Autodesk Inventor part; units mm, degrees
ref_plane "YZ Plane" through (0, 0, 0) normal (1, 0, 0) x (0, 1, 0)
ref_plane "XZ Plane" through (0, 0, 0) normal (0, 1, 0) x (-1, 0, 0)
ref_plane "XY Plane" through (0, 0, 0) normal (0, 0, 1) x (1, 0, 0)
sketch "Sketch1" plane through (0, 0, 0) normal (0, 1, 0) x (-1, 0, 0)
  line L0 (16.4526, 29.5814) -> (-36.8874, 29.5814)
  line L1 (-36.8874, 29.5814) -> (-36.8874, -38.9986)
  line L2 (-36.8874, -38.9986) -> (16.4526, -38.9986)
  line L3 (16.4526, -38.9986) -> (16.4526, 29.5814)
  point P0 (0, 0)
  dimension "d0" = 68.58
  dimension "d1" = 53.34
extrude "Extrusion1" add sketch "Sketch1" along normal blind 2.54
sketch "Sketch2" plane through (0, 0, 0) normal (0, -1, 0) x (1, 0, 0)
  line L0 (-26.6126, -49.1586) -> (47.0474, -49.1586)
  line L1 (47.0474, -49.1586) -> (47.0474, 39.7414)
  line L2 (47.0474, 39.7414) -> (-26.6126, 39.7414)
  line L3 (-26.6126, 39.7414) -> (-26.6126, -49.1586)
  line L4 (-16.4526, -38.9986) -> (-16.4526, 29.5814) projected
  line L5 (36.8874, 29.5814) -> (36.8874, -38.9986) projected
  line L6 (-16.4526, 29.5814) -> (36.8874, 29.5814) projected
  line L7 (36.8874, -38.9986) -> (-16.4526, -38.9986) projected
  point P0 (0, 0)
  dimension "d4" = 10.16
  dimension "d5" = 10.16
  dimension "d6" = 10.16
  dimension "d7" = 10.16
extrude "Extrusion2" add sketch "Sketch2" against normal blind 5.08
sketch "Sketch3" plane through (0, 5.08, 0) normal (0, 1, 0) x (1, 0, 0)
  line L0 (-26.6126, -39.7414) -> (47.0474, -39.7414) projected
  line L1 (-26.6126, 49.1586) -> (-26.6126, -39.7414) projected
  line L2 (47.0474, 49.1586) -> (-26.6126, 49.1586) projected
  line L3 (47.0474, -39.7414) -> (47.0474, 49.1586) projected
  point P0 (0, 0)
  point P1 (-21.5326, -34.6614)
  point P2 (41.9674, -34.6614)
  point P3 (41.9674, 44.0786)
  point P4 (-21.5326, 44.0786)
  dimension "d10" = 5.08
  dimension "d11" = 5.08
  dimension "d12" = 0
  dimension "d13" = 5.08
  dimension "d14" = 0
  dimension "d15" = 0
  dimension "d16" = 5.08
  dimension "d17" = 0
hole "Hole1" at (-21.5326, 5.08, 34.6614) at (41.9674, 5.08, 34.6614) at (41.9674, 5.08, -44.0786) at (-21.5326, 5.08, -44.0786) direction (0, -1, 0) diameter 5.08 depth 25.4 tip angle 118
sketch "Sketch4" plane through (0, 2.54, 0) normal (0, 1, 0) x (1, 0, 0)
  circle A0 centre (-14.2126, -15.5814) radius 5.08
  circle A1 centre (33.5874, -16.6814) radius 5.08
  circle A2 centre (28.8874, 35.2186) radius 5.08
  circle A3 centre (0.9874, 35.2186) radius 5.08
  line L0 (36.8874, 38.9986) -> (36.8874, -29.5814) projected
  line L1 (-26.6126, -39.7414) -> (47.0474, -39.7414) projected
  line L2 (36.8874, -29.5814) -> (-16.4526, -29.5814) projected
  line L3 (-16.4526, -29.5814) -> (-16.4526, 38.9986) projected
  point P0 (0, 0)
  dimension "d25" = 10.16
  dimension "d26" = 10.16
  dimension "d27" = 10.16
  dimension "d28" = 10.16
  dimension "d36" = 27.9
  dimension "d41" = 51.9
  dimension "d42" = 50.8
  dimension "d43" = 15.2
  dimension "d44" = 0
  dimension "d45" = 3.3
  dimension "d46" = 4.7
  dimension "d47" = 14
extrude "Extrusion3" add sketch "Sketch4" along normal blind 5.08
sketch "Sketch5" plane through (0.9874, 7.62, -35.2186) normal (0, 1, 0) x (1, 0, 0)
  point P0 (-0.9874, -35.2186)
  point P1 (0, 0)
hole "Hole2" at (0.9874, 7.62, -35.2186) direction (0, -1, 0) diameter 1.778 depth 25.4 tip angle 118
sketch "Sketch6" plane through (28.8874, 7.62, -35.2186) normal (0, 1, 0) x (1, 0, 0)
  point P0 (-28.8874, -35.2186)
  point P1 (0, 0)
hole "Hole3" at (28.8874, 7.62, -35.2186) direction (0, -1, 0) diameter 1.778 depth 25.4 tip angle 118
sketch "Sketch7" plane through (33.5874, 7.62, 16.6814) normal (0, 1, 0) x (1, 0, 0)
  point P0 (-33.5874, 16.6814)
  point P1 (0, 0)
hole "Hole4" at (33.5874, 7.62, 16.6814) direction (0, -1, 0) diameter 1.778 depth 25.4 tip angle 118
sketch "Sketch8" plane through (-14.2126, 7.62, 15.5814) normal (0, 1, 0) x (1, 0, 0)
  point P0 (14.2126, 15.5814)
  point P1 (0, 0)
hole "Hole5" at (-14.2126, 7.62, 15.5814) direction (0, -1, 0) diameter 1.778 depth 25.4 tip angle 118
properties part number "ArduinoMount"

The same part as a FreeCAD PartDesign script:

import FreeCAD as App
import Part
import Sketcher

V = App.Vector
Q = App.Units.Quantity


def add_polygon(sketch, points):
    """Adds a closed chain of lines whose ends are joined by coincident constraints."""
    first, n = sketch.GeometryCount, len(points)
    for a, b in zip(points, points[1:] + points[:1]):
        sketch.addGeometry(Part.LineSegment(App.Vector(*a, 0), App.Vector(*b, 0)), False)
    for i in range(n):
        sketch.addConstraint(Sketcher.Constraint("Coincident", first + i, 2, first + (i + 1) % n, 1))

doc = App.newDocument("Part")
body = doc.addObject("PartDesign::Body", "Body")

# Sketch on XZ plane
sketch1 = body.newObject("Sketcher::SketchObject", "Sketch")
sketch1.AttachmentSupport = (doc.getObject("XZ_Plane"), [""])
sketch1.MapMode = "FlatFace"
add_polygon(sketch1, [(-16, -39), (-16, 30), (37, 30), (37, -39)])  # lines 0-3
sketch1.addConstraint(Sketcher.Constraint("Vertical", 0))
sketch1.addConstraint(Sketcher.Constraint("Horizontal", 1))
sketch1.addConstraint(Sketcher.Constraint("Vertical", 2))
sketch1.addConstraint(Sketcher.Constraint("Horizontal", 3))
sketch1.addConstraint(Sketcher.Constraint("DistanceX", 1, 1, 1, 2, Q("2.1 in")))
sketch1.addConstraint(Sketcher.Constraint("DistanceY", 0, 1, 0, 2, Q("2.7 in")))
sketch1.addConstraint(Sketcher.Constraint("DistanceX", 0, 2, -1, 1, Q("16.4526 mm")))
sketch1.addConstraint(Sketcher.Constraint("DistanceY", -1, 1, 0, 2, Q("29.5814 mm")))
pad1 = body.newObject("PartDesign::Pad", "Pad")
pad1.Profile = sketch1
pad1.Length = Q("0.1 in")
pad1.Reversed = True

# Sketch on XZ plane
sketch2 = body.newObject("Sketcher::SketchObject", "Sketch001")
sketch2.AttachmentSupport = (doc.getObject("XZ_Plane"), [""])
sketch2.MapMode = "FlatFace"
add_polygon(sketch2, [(-27, 40), (-27, -49), (47, -49), (47, 40)])  # lines 0-3
add_polygon(sketch2, [(37, -39), (-16, -39), (-16, 30), (37, 30)])  # lines 4-7
sketch2.addConstraint(Sketcher.Constraint("Vertical", 0))
sketch2.addConstraint(Sketcher.Constraint("Horizontal", 1))
sketch2.addConstraint(Sketcher.Constraint("Vertical", 2))
sketch2.addConstraint(Sketcher.Constraint("Horizontal", 3))
sketch2.addConstraint(Sketcher.Constraint("Horizontal", 4))
sketch2.addConstraint(Sketcher.Constraint("Vertical", 5))
sketch2.addConstraint(Sketcher.Constraint("Horizontal", 6))
sketch2.addConstraint(Sketcher.Constraint("Vertical", 7))
sketch2.addConstraint(Sketcher.Constraint("DistanceX", 0, 2, 4, 2, Q("0.4 in")))
sketch2.addConstraint(Sketcher.Constraint("DistanceY", 0, 2, 4, 2, Q("0.4 in")))
sketch2.addConstraint(Sketcher.Constraint("DistanceY", 5, 2, 3, 2, Q("0.4 in")))
sketch2.addConstraint(Sketcher.Constraint("DistanceX", 6, 2, 2, 2, Q("0.4 in")))
sketch2.addConstraint(Sketcher.Constraint("DistanceX", 1, 1, 1, 2, Q("2.9 in")))
sketch2.addConstraint(Sketcher.Constraint("DistanceY", 0, 2, 0, 1, Q("3.5 in")))
sketch2.addConstraint(Sketcher.Constraint("DistanceX", 0, 2, -1, 1, Q("26.6126 mm")))
sketch2.addConstraint(Sketcher.Constraint("DistanceY", 0, 2, -1, 1, Q("49.1586 mm")))
pad2 = body.newObject("PartDesign::Pad", "Pad001")
pad2.Profile = sketch2
pad2.Length = Q("0.2 in")
pad2.Reversed = True

# Sketch on XZ plane
sketch3 = body.newObject("Sketcher::SketchObject", "Sketch002")
sketch3.AttachmentSupport = (doc.getObject("XZ_Plane"), [""])
sketch3.MapMode = "FlatFace"
sketch3.AttachmentOffset = App.Placement(V(0, 0, -0.2 * 25.4), App.Rotation())
sketch3.addGeometry(Part.Circle(V(-21.5, 34.7, 0), V(0, 0, 1), 2.5), False)
sketch3.addGeometry(Part.Circle(V(42, 34.7, 0), V(0, 0, 1), 2.5), False)
sketch3.addGeometry(Part.Circle(V(42, -44.1, 0), V(0, 0, 1), 2.5), False)
sketch3.addGeometry(Part.Circle(V(-21.5, -44.1, 0), V(0, 0, 1), 2.5), False)
sketch3.addConstraint(Sketcher.Constraint("Equal", 0, 1))
sketch3.addConstraint(Sketcher.Constraint("Equal", 1, 2))
sketch3.addConstraint(Sketcher.Constraint("Equal", 2, 3))
sketch3.addConstraint(Sketcher.Constraint("Horizontal", 0, 3, 1, 3))
sketch3.addConstraint(Sketcher.Constraint("Horizontal", 2, 3, 3, 3))
sketch3.addConstraint(Sketcher.Constraint("Vertical", 1, 3, 2, 3))
sketch3.addConstraint(Sketcher.Constraint("Vertical", 0, 3, 3, 3))
sketch3.addConstraint(Sketcher.Constraint("Diameter", 0, Q("0.2 in")))
sketch3.addConstraint(Sketcher.Constraint("DistanceX", 0, 3, 1, 3, Q("2.5 in")))
sketch3.addConstraint(Sketcher.Constraint("DistanceY", 2, 3, 1, 3, Q("3.1 in")))
sketch3.addConstraint(Sketcher.Constraint("DistanceX", 0, 3, -1, 1, Q("21.5326 mm")))
sketch3.addConstraint(Sketcher.Constraint("DistanceY", -1, 1, 0, 3, Q("34.6614 mm")))
doc.recompute()
hole = body.newObject("PartDesign::Hole", "Hole")
hole.Profile = sketch3
hole.ThreadType = "None"
hole.Diameter = Q("0.2 in")
hole.DepthType = "Dimension"
hole.Depth = Q("1 in")
hole.DrillPoint = "Angled"
hole.DrillPointAngle = 118
hole.Reversed = True

# Sketch on XZ plane
sketch4 = body.newObject("Sketcher::SketchObject", "Sketch003")
sketch4.AttachmentSupport = (doc.getObject("XZ_Plane"), [""])
sketch4.MapMode = "FlatFace"
sketch4.AttachmentOffset = App.Placement(V(0, 0, -0.1 * 25.4), App.Rotation())
sketch4.addGeometry(Part.Circle(V(-14, 16, 0), V(0, 0, 1), 5), False)
sketch4.addGeometry(Part.Circle(V(34, 17, 0), V(0, 0, 1), 5), False)
sketch4.addGeometry(Part.Circle(V(29, -35, 0), V(0, 0, 1), 5), False)
sketch4.addGeometry(Part.Circle(V(1, -35, 0), V(0, 0, 1), 5), False)
sketch4.addConstraint(Sketcher.Constraint("Equal", 0, 1))
sketch4.addConstraint(Sketcher.Constraint("Equal", 1, 2))
sketch4.addConstraint(Sketcher.Constraint("Equal", 2, 3))
sketch4.addConstraint(Sketcher.Constraint("Horizontal", 2, 3, 3, 3))
sketch4.addConstraint(Sketcher.Constraint("Diameter", 0, Q("0.4 in")))
sketch4.addConstraint(Sketcher.Constraint("DistanceY", 2, 3, 0, 3, Q("2 in")))
sketch4.addConstraint(Sketcher.Constraint("DistanceY", 2, 3, 1, 3, Q("2.0433 in")))
sketch4.addConstraint(Sketcher.Constraint("DistanceX", 2, 3, 1, 3, Q("4.7 mm")))
sketch4.addConstraint(Sketcher.Constraint("DistanceX", 3, 3, 2, 3, Q("27.9 mm")))
sketch4.addConstraint(Sketcher.Constraint("DistanceX", 0, 3, 3, 3, Q("15.2 mm")))
sketch4.addConstraint(Sketcher.Constraint("DistanceX", -1, 1, 2, 3, Q("1.1373 in")))
sketch4.addConstraint(Sketcher.Constraint("DistanceY", -1, 1, 0, 3, Q("15.5814 mm")))
pad3 = body.newObject("PartDesign::Pad", "Pad002")
pad3.Profile = sketch4
pad3.Length = Q("0.2 in")
pad3.Reversed = True

# Sketch on XZ plane
sketch5 = body.newObject("Sketcher::SketchObject", "Sketch004")
sketch5.AttachmentSupport = (doc.getObject("XZ_Plane"), [""])
sketch5.MapMode = "FlatFace"
sketch5.AttachmentOffset = App.Placement(V(0, 0, -0.3 * 25.4), App.Rotation())
sketch5.addGeometry(Part.Circle(V(1, -35.2, 0), V(0, 0, 1), 0.9), False)
sketch5.addConstraint(Sketcher.Constraint("Diameter", 0, Q("0.07 in")))
sketch5.addConstraint(Sketcher.Constraint("DistanceX", -1, 1, 0, 3, Q("0.9874 mm")))
sketch5.addConstraint(Sketcher.Constraint("DistanceY", 0, 3, -1, 1, Q("35.2186 mm")))
doc.recompute()
hole2 = body.newObject("PartDesign::Hole", "Hole001")
hole2.Profile = sketch5
hole2.ThreadType = "None"
hole2.Diameter = Q("0.07 in")
hole2.DepthType = "Dimension"
hole2.Depth = Q("1 in")
hole2.DrillPoint = "Angled"
hole2.DrillPointAngle = 118
hole2.Reversed = True

# Sketch on XZ plane
sketch6 = body.newObject("Sketcher::SketchObject", "Sketch005")
sketch6.AttachmentSupport = (doc.getObject("XZ_Plane"), [""])
sketch6.MapMode = "FlatFace"
sketch6.AttachmentOffset = App.Placement(V(0, 0, -0.3 * 25.4), App.Rotation())
sketch6.addGeometry(Part.Circle(V(28.9, -35.2, 0), V(0, 0, 1), 0.9), False)
sketch6.addConstraint(Sketcher.Constraint("Diameter", 0, Q("0.07 in")))
sketch6.addConstraint(Sketcher.Constraint("DistanceX", -1, 1, 0, 3, Q("1.1373 in")))
sketch6.addConstraint(Sketcher.Constraint("DistanceY", 0, 3, -1, 1, Q("35.2186 mm")))
doc.recompute()
hole3 = body.newObject("PartDesign::Hole", "Hole002")
hole3.Profile = sketch6
hole3.ThreadType = "None"
hole3.Diameter = Q("0.07 in")
hole3.DepthType = "Dimension"
hole3.Depth = Q("1 in")
hole3.DrillPoint = "Angled"
hole3.DrillPointAngle = 118
hole3.Reversed = True

# Sketch on XZ plane
sketch7 = body.newObject("Sketcher::SketchObject", "Sketch006")
sketch7.AttachmentSupport = (doc.getObject("XZ_Plane"), [""])
sketch7.MapMode = "FlatFace"
sketch7.AttachmentOffset = App.Placement(V(0, 0, -0.3 * 25.4), App.Rotation())
sketch7.addGeometry(Part.Circle(V(33.6, 16.7, 0), V(0, 0, 1), 0.9), False)
sketch7.addConstraint(Sketcher.Constraint("Diameter", 0, Q("0.07 in")))
sketch7.addConstraint(Sketcher.Constraint("DistanceX", -1, 1, 0, 3, Q("33.5874 mm")))
sketch7.addConstraint(Sketcher.Constraint("DistanceY", -1, 1, 0, 3, Q("16.6814 mm")))
doc.recompute()
hole4 = body.newObject("PartDesign::Hole", "Hole003")
hole4.Profile = sketch7
hole4.ThreadType = "None"
hole4.Diameter = Q("0.07 in")
hole4.DepthType = "Dimension"
hole4.Depth = Q("1 in")
hole4.DrillPoint = "Angled"
hole4.DrillPointAngle = 118
hole4.Reversed = True

# Sketch on XZ plane
sketch8 = body.newObject("Sketcher::SketchObject", "Sketch007")
sketch8.AttachmentSupport = (doc.getObject("XZ_Plane"), [""])
sketch8.MapMode = "FlatFace"
sketch8.AttachmentOffset = App.Placement(V(0, 0, -0.3 * 25.4), App.Rotation())
sketch8.addGeometry(Part.Circle(V(-14.2, 15.6, 0), V(0, 0, 1), 0.9), False)
sketch8.addConstraint(Sketcher.Constraint("Diameter", 0, Q("0.07 in")))
sketch8.addConstraint(Sketcher.Constraint("DistanceX", 0, 3, -1, 1, Q("14.2126 mm")))
sketch8.addConstraint(Sketcher.Constraint("DistanceY", -1, 1, 0, 3, Q("15.5814 mm")))
doc.recompute()
hole5 = body.newObject("PartDesign::Hole", "Hole004")
hole5.Profile = sketch8
hole5.ThreadType = "None"
hole5.Diameter = Q("0.07 in")
hole5.DepthType = "Dimension"
hole5.Depth = Q("1 in")
hole5.DrillPoint = "Angled"
hole5.DrillPointAngle = 118
hole5.Reversed = True

doc.recompute()
